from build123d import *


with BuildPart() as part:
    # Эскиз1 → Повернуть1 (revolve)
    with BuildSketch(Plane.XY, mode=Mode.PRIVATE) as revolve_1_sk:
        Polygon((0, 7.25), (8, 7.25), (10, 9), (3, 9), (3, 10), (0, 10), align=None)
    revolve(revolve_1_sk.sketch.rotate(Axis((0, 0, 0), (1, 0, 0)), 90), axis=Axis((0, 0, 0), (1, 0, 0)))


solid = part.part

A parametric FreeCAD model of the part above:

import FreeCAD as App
import Part
import Sketcher
from FreeCAD import Vector

doc = App.newDocument("Part")
body = doc.addObject("PartDesign::Body", "Body")

sketch1 = body.newObject("Sketcher::SketchObject", "Sketch")
sketch1.AttachmentSupport = (doc.getObject("XY_Plane"), [""])
sketch1.MapMode = "FlatFace"
sketch1.addGeometry(Part.LineSegment(Vector(0, 7.2, 0), Vector(8, 7.2, 0)), False)
sketch1.addGeometry(Part.LineSegment(Vector(8, 7.2, 0), Vector(10, 9, 0)), False)
sketch1.addGeometry(Part.LineSegment(Vector(10, 9, 0), Vector(3, 9, 0)), False)
sketch1.addGeometry(Part.LineSegment(Vector(3, 9, 0), Vector(3, 10, 0)), False)
sketch1.addGeometry(Part.LineSegment(Vector(3, 10, 0), Vector(0, 10, 0)), False)
sketch1.addGeometry(Part.LineSegment(Vector(0, 10, 0), Vector(0, 7.2, 0)), False)
sketch1.addConstraint(Sketcher.Constraint("Coincident", 0, 2, 1, 1))
sketch1.addConstraint(Sketcher.Constraint("Coincident", 1, 2, 2, 1))
sketch1.addConstraint(Sketcher.Constraint("Coincident", 2, 2, 3, 1))
sketch1.addConstraint(Sketcher.Constraint("Coincident", 3, 2, 4, 1))
sketch1.addConstraint(Sketcher.Constraint("Coincident", 4, 2, 5, 1))
sketch1.addConstraint(Sketcher.Constraint("Coincident", 5, 2, 0, 1))
sketch1.addConstraint(Sketcher.Constraint("Horizontal", 0))
sketch1.addConstraint(Sketcher.Constraint("Horizontal", 2))
sketch1.addConstraint(Sketcher.Constraint("Vertical", 3))
sketch1.addConstraint(Sketcher.Constraint("Horizontal", 4))
sketch1.addConstraint(Sketcher.Constraint("Vertical", 5))
sketch1.addConstraint(Sketcher.Constraint("PointOnObject", 4, 2, -2))
sketch1.addConstraint(Sketcher.Constraint("DistanceX", 0, 1, 0, 2, 8.0))
sketch1.addConstraint(Sketcher.Constraint("DistanceX", 2, 2, 2, 1, 7.0))
sketch1.addConstraint(Sketcher.Constraint("DistanceX", 4, 2, 4, 1, 3.0))
sketch1.addConstraint(Sketcher.Constraint("DistanceY", 3, 1, 3, 2, 1.0))
sketch1.addConstraint(Sketcher.Constraint("DistanceY", -1, 1, 1, 2, 9.0))
sketch1.addConstraint(Sketcher.Constraint("DistanceY", 5, 2, 5, 1, 2.75))
revolution = body.newObject("PartDesign::Revolution", "Revolution")
revolution.Profile = sketch1
revolution.ReferenceAxis = (sketch1, ["H_Axis"])
revolution.Angle = 360

doc.recompute()
